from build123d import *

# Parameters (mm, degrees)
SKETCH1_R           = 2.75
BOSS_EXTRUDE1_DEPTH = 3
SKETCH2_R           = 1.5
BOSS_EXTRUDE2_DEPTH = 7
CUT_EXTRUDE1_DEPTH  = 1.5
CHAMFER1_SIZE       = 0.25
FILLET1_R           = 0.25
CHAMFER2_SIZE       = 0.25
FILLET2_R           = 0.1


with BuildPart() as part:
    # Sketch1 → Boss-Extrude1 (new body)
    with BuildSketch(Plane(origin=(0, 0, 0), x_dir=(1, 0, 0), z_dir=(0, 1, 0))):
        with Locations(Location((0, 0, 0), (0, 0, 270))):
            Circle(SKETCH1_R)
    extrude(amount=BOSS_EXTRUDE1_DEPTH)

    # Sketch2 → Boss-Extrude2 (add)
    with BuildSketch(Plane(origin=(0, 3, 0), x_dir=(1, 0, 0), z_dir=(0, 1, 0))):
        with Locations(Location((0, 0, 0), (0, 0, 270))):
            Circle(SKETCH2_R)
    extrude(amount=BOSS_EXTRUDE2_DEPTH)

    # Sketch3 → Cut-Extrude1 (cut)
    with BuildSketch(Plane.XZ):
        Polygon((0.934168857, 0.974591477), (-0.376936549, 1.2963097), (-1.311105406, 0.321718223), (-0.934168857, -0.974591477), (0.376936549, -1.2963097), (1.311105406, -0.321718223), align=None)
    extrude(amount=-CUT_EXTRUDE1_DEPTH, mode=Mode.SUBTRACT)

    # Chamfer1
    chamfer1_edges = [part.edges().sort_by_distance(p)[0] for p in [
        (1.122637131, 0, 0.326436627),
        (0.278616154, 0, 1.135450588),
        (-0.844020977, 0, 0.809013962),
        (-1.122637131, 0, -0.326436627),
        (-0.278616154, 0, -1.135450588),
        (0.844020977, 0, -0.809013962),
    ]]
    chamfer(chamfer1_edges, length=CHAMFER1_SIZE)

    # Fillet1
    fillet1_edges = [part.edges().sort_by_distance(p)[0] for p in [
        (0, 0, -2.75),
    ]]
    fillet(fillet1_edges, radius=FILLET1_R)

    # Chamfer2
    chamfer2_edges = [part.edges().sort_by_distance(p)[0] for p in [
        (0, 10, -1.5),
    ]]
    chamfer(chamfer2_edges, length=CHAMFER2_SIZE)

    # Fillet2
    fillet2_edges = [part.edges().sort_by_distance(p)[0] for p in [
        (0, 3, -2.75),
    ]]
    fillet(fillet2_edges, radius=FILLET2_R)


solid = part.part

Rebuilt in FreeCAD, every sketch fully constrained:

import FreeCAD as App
import Part
import Sketcher

V = App.Vector
Q = App.Units.Quantity


def edges_at(feature, points):
    """Names of the edges that pass closest to the given points."""
    edges = feature.Shape.Edges
    near = lambda p: min(range(len(edges)), key=lambda i: edges[i].distToShape(Part.Vertex(*p))[0])
    return sorted({f"Edge{near(p) + 1}" for p in points})


def add_polygon(sketch, points):
    """Adds a closed chain of lines whose ends are joined by coincident constraints."""
    first, n = sketch.GeometryCount, len(points)
    for a, b in zip(points, points[1:] + points[:1]):
        sketch.addGeometry(Part.LineSegment(App.Vector(*a, 0), App.Vector(*b, 0)), False)
    for i in range(n):
        sketch.addConstraint(Sketcher.Constraint("Coincident", first + i, 2, first + (i + 1) % n, 1))

doc = App.newDocument("Part")
params = doc.addObject("Spreadsheet::Sheet", "Params")
for row, (alias, value) in enumerate([
    ("sketch1_diameter", "5.5 mm"),
    ("pad1_length", "3 mm"),
    ("sketch2_diameter", "3 mm"),
    ("pad2_length", "7 mm"),
    ("sketch3_length", "1.35 mm"),
    ("pocket1_length", "1.5 mm"),
    ("chamfer_size", "0.25 mm"),
    ("fillet_radius", "0.25 mm"),
    ("chamfer2_size", "0.25 mm"),
    ("fillet2_radius", "0.1 mm"),
], start=1):
    params.set(f"A{row}", alias)
    params.set(f"B{row}", "=" + value)
    params.setAlias(f"B{row}", alias)

body = doc.addObject("PartDesign::Body", "Body")

# Sketch on XZ plane
sketch1 = body.newObject("Sketcher::SketchObject", "Sketch")
sketch1.AttachmentSupport = (doc.getObject("XZ_Plane"), [""])
sketch1.MapMode = "FlatFace"
sketch1.addGeometry(Part.Circle(V(0, 0, 0), V(0, 0, 1), 2.75), False)
sketch1.addConstraint(Sketcher.Constraint("Coincident", 0, 3, -1, 1))
sketch1.addConstraint(Sketcher.Constraint("Diameter", 0, Q("5.5 mm")))
sketch1.setExpression("Constraints[1]", "Params.sketch1_diameter")
pad1 = body.newObject("PartDesign::Pad", "Pad")
pad1.Profile = sketch1
pad1.setExpression("Length", "Params.pad1_length")
pad1.Reversed = True

# Sketch on XZ plane
sketch2 = body.newObject("Sketcher::SketchObject", "Sketch001")
sketch2.AttachmentSupport = (doc.getObject("XZ_Plane"), [""])
sketch2.MapMode = "FlatFace"
sketch2.AttachmentOffset = App.Placement(V(0, 0, -3), App.Rotation())
sketch2.addGeometry(Part.Circle(V(0, 0, 0), V(0, 0, 1), 1.5), False)
sketch2.addConstraint(Sketcher.Constraint("Coincident", 0, 3, -1, 1))
sketch2.addConstraint(Sketcher.Constraint("Diameter", 0, Q("3 mm")))
sketch2.setExpression("Constraints[1]", "Params.sketch2_diameter")
pad2 = body.newObject("PartDesign::Pad", "Pad001")
pad2.Profile = sketch2
pad2.setExpression("Length", "Params.pad2_length")
pad2.Reversed = True

# Sketch on XZ plane
sketch3 = body.newObject("Sketcher::SketchObject", "Sketch002")
sketch3.AttachmentSupport = (doc.getObject("XZ_Plane"), [""])
sketch3.MapMode = "FlatFace"
add_polygon(sketch3, [(0.934169, 0.974591), (-0.376937, 1.29631), (-1.311105, 0.321718), (-0.934169, -0.974591), (0.376937, -1.29631), (1.311105, -0.321718)])  # lines 0-5
sketch3.addConstraint(Sketcher.Constraint("Symmetric", 0, 2, 3, 2, -1, 1))
sketch3.addConstraint(Sketcher.Constraint("Symmetric", 1, 2, 4, 2, -1, 1))
sketch3.addConstraint(Sketcher.Constraint("Symmetric", 2, 2, 5, 2, -1, 1))
sketch3.addConstraint(Sketcher.Constraint("Equal", 0, 1))
sketch3.addConstraint(Sketcher.Constraint("Equal", 1, 2))
sketch3.addConstraint(Sketcher.Constraint("Distance", 0, Q("1.35 mm")))
sketch3.addConstraint(Sketcher.Constraint("DistanceY", 2, 2, 0, 2, Q("2.270901 mm")))
sketch3.addConstraint(Sketcher.Constraint("DistanceY", -1, 1, 0, 2, Q("1.29631 mm")))
sketch3.addConstraint(Sketcher.Constraint("DistanceY", -1, 1, 1, 2, Q("0.321718 mm")))
sketch3.setExpression("Constraints[11]", "Params.sketch3_length")
pocket1 = body.newObject("PartDesign::Pocket", "Pocket")
pocket1.Profile = sketch3
pocket1.setExpression("Length", "Params.pocket1_length")
doc.recompute()

chamfer = body.newObject("PartDesign::Chamfer", "Chamfer")
chamfer.Base = (pocket1, edges_at(pocket1, [
    (1.123, 0, 0.326),
    (0.279, 0, 1.135),
    (-0.844, 0, 0.809),
    (-1.123, 0, -0.326),
    (-0.279, 0, -1.135),
    (0.844, 0, -0.809),
]))
chamfer.setExpression("Size", "Params.chamfer_size")
doc.recompute()

fillet = body.newObject("PartDesign::Fillet", "Fillet")
fillet.Base = (chamfer, edges_at(chamfer, [(0, 0, -2.75)]))
fillet.setExpression("Radius", "Params.fillet_radius")
doc.recompute()

chamfer2 = body.newObject("PartDesign::Chamfer", "Chamfer001")
chamfer2.Base = (fillet, edges_at(fillet, [(0, 10, -1.5)]))
chamfer2.setExpression("Size", "Params.chamfer2_size")
doc.recompute()

fillet2 = body.newObject("PartDesign::Fillet", "Fillet001")
fillet2.Base = (chamfer2, edges_at(chamfer2, [(0, 3, -2.75)]))
fillet2.setExpression("Radius", "Params.fillet2_radius")

doc.recompute()
